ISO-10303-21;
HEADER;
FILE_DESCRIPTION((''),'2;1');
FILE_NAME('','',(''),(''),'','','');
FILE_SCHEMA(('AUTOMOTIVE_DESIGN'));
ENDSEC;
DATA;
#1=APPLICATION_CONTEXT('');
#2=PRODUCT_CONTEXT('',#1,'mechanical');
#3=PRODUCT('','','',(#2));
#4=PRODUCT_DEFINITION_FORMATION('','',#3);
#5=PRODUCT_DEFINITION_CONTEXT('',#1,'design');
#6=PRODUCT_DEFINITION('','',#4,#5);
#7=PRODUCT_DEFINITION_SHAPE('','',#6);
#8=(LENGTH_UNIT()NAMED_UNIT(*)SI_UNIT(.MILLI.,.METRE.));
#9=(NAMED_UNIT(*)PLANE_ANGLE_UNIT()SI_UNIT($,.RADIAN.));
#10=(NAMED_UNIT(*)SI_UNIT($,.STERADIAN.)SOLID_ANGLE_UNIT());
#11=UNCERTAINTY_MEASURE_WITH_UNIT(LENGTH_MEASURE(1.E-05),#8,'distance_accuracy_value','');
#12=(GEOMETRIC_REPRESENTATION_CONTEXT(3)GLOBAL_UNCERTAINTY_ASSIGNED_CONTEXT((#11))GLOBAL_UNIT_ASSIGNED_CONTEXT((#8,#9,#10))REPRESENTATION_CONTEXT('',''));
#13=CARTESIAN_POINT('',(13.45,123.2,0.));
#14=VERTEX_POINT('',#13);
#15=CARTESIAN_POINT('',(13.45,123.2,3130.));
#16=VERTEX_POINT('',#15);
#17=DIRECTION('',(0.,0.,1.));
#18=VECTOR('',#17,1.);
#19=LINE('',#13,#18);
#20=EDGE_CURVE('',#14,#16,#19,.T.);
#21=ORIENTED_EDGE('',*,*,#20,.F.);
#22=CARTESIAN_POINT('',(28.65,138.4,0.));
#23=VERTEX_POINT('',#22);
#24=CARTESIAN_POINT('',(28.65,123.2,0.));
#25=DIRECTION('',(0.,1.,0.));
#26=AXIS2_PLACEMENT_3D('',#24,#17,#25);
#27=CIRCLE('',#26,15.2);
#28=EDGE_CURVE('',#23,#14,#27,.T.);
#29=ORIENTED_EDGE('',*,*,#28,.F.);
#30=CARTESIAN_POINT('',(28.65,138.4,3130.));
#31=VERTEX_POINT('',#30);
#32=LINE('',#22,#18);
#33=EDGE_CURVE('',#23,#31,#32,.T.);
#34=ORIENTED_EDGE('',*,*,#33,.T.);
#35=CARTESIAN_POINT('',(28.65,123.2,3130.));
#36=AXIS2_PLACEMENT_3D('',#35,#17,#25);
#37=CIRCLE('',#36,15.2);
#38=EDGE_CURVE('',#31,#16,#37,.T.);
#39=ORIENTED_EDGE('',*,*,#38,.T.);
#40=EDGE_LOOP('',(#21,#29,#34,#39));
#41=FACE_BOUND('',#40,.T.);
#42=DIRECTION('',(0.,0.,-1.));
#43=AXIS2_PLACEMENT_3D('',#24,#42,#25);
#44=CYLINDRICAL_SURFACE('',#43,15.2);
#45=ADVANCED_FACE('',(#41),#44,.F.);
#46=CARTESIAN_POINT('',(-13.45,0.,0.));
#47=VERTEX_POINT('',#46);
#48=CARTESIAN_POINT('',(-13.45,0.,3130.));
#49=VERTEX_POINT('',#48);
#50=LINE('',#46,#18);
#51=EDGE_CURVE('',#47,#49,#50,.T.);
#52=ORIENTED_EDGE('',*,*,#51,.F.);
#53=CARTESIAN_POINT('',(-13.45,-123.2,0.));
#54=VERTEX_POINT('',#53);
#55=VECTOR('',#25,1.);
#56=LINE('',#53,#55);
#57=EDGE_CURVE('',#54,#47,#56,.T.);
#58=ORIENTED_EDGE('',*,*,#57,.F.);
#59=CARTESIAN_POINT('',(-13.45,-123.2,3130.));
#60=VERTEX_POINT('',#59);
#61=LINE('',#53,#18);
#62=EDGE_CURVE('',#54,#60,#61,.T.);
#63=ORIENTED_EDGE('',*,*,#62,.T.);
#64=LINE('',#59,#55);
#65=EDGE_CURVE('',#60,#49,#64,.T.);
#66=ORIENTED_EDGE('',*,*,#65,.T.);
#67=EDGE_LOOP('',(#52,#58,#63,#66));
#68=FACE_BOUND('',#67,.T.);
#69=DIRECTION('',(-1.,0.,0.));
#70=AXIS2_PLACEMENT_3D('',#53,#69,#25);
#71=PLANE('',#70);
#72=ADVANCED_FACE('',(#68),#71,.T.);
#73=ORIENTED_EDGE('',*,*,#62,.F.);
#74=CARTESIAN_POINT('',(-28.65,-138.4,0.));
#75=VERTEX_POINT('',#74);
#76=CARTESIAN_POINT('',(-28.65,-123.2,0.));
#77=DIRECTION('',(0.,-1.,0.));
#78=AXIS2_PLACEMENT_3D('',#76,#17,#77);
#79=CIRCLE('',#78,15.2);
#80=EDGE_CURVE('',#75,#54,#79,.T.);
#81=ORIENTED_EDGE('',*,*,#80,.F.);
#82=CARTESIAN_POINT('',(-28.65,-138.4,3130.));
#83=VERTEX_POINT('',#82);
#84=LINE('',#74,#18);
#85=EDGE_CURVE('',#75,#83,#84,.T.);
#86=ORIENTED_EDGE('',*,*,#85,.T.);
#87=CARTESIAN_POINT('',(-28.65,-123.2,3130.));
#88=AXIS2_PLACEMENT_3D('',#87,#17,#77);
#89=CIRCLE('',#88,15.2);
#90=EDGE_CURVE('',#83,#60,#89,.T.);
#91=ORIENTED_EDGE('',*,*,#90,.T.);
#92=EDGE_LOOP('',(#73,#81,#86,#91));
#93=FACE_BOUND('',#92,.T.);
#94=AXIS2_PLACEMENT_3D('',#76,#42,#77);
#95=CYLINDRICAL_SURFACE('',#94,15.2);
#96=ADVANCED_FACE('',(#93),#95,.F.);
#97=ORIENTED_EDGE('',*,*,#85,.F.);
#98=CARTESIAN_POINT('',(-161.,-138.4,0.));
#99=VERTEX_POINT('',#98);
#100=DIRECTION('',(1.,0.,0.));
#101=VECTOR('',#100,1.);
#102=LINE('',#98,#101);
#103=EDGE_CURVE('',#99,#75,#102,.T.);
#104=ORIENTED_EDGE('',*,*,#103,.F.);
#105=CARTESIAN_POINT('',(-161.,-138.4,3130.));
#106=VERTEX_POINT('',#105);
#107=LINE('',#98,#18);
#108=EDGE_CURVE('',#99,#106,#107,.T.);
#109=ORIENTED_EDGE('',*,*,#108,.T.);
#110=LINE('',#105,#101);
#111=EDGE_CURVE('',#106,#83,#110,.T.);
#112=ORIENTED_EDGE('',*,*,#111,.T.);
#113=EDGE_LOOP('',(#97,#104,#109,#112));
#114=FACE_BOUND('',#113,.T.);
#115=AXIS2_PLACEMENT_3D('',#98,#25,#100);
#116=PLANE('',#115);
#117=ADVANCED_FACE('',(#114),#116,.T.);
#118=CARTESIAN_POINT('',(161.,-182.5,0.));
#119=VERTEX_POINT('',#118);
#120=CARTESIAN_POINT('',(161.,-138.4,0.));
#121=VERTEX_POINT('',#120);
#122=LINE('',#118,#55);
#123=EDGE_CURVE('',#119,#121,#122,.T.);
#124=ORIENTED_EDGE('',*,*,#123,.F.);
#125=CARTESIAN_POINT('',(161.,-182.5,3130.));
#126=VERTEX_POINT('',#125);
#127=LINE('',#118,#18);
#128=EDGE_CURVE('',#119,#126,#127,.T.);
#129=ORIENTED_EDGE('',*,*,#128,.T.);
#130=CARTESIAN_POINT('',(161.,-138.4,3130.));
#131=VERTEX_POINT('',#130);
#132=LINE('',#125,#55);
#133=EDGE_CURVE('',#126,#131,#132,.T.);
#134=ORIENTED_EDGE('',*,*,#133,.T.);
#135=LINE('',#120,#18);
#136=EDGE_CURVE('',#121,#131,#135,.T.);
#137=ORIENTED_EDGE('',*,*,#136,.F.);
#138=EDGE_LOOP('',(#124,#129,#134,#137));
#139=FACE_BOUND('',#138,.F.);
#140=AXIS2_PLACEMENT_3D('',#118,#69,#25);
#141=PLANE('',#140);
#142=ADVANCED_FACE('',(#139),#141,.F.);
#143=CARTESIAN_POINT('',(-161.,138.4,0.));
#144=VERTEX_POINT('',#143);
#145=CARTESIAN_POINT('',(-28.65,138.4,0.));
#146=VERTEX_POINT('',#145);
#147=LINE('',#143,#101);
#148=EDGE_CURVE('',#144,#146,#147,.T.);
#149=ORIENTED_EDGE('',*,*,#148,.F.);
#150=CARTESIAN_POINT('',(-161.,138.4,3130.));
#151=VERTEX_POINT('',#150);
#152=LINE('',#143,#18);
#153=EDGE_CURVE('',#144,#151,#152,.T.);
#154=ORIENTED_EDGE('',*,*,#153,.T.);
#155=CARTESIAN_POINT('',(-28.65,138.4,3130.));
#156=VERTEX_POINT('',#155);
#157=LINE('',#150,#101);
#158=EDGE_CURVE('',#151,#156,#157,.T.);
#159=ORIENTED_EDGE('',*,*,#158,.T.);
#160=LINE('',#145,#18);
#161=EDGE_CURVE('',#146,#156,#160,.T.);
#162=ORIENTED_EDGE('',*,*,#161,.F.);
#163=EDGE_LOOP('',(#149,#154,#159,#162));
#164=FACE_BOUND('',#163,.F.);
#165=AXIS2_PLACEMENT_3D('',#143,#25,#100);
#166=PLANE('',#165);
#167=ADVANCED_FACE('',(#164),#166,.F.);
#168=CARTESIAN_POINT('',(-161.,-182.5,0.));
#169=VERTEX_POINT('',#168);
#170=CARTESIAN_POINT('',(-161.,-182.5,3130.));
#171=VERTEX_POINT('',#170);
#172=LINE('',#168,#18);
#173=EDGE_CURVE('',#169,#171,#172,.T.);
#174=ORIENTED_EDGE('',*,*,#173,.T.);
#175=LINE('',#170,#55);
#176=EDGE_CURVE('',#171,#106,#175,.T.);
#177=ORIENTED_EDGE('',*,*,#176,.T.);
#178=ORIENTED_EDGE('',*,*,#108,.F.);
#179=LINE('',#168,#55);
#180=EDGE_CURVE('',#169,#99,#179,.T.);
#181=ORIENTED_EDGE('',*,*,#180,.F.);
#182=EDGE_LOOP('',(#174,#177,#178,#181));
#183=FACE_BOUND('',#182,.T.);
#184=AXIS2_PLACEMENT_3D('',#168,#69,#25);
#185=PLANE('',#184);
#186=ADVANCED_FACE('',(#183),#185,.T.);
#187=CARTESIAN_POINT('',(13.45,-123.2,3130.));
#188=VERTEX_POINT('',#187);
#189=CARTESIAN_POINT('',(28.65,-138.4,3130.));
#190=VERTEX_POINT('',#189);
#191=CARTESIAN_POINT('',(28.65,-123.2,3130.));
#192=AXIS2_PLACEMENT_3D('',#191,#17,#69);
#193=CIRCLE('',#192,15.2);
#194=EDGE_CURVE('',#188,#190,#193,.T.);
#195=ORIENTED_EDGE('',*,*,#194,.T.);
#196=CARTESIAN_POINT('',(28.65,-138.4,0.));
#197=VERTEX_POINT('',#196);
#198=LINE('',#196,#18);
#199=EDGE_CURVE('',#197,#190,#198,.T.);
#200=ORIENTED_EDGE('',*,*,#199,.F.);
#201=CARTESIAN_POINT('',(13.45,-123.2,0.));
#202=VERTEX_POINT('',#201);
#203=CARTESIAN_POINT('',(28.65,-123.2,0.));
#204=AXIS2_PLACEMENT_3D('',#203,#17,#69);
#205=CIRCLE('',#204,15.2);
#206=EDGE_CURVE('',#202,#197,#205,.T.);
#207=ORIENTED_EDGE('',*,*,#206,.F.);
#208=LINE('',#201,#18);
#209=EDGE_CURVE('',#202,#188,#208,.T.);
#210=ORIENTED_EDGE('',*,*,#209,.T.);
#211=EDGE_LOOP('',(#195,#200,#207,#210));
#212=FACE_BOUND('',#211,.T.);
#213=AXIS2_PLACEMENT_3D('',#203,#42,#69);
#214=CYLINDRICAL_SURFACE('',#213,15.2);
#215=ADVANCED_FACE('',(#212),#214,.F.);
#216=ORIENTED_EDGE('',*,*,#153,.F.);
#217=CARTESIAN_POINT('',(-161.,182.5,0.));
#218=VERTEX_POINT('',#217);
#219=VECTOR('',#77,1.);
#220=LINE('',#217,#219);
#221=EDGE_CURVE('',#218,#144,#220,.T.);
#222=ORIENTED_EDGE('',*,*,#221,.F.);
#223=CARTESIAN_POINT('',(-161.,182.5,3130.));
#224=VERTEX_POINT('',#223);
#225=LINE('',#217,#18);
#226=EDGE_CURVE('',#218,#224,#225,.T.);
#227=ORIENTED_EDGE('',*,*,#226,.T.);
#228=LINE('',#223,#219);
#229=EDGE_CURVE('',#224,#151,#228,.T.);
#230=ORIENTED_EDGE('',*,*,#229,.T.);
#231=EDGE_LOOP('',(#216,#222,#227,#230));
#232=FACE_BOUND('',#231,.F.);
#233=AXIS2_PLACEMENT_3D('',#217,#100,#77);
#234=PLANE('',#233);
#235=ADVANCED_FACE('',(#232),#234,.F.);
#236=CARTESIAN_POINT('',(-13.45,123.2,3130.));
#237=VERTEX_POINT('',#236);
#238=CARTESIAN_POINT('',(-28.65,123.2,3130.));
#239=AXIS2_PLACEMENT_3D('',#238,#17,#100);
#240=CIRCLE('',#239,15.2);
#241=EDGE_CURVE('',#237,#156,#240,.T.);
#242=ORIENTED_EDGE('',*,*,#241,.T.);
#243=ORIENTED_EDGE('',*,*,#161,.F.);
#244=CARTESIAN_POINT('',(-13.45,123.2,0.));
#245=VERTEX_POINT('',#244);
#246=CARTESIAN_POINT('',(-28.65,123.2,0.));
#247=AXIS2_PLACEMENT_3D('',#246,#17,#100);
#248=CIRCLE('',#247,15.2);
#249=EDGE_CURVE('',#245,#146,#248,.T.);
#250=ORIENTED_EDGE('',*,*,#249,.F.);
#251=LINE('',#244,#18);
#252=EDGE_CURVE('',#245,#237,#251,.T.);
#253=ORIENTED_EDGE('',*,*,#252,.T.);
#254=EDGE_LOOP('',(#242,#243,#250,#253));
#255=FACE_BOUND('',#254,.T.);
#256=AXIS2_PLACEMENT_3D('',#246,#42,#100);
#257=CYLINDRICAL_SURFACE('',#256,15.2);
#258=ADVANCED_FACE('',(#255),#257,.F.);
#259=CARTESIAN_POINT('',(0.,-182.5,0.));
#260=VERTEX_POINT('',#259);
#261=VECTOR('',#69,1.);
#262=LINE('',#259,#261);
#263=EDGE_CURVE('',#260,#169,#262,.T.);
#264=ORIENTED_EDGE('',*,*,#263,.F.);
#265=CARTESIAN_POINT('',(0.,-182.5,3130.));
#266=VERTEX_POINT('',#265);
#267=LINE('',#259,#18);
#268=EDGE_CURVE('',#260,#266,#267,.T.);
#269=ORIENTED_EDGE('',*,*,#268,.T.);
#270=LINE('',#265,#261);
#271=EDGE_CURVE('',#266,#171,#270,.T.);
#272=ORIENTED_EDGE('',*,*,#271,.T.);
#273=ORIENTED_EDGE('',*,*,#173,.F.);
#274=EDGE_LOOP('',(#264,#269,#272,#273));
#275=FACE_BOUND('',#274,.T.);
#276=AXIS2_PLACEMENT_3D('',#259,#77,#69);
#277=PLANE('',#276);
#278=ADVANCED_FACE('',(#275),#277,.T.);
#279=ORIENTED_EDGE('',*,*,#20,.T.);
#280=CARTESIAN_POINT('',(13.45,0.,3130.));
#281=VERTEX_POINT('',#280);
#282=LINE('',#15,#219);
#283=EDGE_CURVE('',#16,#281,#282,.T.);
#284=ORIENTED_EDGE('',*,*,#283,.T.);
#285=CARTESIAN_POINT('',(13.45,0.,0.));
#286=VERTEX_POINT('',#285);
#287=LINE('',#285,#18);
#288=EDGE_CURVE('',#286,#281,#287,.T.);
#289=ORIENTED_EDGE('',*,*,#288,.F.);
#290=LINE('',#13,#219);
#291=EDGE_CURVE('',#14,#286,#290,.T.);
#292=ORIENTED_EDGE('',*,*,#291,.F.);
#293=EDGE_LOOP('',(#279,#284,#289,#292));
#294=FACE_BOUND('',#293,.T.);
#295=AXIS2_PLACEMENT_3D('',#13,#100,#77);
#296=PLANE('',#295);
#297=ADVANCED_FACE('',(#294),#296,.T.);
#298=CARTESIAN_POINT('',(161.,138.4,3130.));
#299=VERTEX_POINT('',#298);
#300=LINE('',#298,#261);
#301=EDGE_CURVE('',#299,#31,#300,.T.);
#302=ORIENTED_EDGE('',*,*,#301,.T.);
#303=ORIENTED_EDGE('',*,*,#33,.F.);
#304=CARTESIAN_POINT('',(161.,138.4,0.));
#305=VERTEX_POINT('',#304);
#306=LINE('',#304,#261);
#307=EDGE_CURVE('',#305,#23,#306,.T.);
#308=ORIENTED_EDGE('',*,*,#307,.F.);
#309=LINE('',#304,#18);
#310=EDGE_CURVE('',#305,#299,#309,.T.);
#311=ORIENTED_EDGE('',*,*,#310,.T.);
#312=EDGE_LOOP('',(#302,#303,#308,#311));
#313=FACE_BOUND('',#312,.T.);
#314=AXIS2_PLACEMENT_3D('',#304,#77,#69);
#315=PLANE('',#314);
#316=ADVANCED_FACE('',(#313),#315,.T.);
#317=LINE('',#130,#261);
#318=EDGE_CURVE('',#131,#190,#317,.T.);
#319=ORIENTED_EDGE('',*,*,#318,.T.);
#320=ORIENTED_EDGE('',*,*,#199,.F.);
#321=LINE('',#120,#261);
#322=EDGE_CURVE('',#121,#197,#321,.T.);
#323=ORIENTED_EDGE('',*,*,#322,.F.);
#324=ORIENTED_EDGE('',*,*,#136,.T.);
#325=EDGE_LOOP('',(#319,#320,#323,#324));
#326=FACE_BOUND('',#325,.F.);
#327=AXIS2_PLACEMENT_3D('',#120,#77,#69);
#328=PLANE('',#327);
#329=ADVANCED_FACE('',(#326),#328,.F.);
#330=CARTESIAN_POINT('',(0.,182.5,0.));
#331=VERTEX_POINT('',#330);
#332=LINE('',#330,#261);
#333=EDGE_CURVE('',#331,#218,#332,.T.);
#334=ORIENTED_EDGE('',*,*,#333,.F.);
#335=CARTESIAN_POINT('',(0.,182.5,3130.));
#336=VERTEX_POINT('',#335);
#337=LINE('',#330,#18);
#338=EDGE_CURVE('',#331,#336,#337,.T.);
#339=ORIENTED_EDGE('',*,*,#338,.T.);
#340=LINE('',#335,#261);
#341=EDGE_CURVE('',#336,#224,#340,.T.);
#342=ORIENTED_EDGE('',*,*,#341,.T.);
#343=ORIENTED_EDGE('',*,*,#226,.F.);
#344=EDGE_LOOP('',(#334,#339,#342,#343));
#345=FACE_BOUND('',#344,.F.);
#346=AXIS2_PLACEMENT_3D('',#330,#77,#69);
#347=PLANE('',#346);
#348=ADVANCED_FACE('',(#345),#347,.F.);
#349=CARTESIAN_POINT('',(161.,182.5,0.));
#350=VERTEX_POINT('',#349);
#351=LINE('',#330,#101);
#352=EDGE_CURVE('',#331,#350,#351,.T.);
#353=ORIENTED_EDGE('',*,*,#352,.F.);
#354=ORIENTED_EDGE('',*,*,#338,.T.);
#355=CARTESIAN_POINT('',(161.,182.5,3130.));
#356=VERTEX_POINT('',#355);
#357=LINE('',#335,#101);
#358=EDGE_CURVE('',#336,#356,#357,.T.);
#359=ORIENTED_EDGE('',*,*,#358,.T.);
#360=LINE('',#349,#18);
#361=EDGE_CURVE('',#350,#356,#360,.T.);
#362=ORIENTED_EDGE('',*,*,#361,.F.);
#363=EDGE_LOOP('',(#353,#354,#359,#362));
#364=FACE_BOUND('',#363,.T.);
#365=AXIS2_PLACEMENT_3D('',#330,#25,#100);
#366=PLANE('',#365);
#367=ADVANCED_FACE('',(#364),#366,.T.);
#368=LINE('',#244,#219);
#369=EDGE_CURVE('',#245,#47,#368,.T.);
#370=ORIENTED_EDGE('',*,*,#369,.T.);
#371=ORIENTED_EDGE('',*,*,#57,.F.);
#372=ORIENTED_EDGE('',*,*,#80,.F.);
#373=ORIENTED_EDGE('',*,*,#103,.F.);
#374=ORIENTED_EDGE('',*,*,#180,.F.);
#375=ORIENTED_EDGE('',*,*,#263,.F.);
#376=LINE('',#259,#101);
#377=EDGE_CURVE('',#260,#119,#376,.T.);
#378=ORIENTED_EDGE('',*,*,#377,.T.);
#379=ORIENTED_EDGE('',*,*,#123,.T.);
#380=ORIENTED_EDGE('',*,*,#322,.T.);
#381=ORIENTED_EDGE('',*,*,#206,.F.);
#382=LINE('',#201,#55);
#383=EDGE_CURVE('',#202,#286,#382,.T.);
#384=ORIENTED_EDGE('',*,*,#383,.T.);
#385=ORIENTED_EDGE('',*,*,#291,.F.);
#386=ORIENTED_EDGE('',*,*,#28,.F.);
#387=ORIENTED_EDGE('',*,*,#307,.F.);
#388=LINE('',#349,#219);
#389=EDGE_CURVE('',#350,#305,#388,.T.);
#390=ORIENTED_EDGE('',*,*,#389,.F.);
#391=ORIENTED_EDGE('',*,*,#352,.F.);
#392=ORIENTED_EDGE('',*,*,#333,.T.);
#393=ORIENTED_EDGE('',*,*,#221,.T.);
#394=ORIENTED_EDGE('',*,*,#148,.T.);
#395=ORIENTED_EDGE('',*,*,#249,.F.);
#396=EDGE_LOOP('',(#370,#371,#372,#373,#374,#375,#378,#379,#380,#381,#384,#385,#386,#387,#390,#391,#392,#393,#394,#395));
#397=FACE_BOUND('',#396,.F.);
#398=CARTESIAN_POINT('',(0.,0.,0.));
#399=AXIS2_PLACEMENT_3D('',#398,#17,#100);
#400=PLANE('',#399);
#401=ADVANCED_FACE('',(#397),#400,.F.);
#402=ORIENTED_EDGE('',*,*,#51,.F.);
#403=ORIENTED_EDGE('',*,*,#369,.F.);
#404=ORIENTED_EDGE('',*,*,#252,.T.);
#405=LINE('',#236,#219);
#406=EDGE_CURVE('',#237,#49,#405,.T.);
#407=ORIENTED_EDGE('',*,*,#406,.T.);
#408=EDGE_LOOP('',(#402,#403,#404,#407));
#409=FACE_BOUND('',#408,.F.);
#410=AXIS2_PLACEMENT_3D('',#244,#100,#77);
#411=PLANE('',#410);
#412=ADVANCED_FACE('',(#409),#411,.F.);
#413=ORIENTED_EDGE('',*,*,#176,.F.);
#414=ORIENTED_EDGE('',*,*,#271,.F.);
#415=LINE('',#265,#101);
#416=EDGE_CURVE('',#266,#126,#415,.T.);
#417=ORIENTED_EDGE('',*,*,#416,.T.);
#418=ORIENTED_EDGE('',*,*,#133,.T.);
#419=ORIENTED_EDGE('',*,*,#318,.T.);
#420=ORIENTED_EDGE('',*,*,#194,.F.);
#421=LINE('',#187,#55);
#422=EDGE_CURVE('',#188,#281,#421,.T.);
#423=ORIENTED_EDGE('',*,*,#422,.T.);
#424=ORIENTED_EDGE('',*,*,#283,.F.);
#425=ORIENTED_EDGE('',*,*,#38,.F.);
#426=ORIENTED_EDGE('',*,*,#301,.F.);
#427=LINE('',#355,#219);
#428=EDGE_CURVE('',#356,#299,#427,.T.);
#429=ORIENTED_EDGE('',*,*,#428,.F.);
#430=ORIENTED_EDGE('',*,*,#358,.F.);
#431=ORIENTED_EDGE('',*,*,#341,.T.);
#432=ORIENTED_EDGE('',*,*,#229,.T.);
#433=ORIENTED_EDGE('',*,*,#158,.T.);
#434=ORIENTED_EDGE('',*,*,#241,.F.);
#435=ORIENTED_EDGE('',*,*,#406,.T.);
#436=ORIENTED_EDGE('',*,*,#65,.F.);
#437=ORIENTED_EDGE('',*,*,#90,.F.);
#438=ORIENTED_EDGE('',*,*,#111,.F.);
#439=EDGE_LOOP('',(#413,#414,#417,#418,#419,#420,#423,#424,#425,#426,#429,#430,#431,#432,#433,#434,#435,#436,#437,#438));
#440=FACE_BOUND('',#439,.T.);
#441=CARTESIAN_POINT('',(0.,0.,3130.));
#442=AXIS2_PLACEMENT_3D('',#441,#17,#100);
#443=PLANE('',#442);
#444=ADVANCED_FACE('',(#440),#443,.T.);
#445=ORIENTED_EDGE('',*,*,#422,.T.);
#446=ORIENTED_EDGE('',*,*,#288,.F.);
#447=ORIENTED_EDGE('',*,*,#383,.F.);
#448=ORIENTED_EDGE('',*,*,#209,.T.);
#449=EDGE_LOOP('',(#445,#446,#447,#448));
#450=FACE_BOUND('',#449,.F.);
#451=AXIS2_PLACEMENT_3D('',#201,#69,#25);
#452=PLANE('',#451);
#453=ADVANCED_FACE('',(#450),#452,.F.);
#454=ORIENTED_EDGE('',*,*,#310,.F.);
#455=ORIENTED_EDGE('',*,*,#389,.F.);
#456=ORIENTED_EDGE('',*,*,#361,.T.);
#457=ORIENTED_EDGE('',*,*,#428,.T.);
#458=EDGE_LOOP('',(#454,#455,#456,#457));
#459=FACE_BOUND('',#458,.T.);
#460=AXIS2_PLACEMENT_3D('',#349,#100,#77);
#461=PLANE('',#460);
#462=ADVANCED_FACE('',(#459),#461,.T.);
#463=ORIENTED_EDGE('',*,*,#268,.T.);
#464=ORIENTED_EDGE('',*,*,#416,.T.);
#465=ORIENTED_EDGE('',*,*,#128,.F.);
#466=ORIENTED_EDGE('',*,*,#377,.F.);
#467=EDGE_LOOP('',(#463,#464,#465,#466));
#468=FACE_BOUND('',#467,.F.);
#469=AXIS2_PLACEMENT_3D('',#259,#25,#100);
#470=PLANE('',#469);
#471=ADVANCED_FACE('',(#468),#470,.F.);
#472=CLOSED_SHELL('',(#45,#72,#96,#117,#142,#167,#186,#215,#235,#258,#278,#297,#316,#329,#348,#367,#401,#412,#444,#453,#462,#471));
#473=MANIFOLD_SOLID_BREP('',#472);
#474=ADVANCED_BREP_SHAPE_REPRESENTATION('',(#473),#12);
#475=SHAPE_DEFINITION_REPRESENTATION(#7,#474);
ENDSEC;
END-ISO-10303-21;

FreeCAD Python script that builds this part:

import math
import FreeCAD as App
import Part
import Sketcher
Q = App.Units.Quantity

doc = App.newDocument("Part")
body = doc.addObject("PartDesign::Body", "Body")

# Sketch on XY plane
sketch1 = body.newObject("Sketcher::SketchObject", "Sketch")
sketch1.AttachmentSupport = (doc.getObject("XY_Plane"), [""])
sketch1.MapMode = "FlatFace"
sketch1.addGeometry(Part.LineSegment(App.Vector(-161, -138.4, 0), App.Vector(-161, -182.5, 0)), False)
sketch1.addGeometry(Part.LineSegment(App.Vector(-161, -182.5, 0), App.Vector(161, -182.5, 0)), False)
sketch1.addGeometry(Part.LineSegment(App.Vector(161, -182.5, 0), App.Vector(161, -138.4, 0)), False)
sketch1.addGeometry(Part.LineSegment(App.Vector(161, -138.4, 0), App.Vector(28.65, -138.4, 0)), False)
sketch1.addGeometry(Part.ArcOfCircle(Part.Circle(App.Vector(28.65, -123.2, 0), App.Vector(0, 0, 1), 15.2), math.radians(180), math.radians(270)), False)
sketch1.addGeometry(Part.LineSegment(App.Vector(13.45, -123.2, 0), App.Vector(13.45, 123.2, 0)), False)
sketch1.addGeometry(Part.ArcOfCircle(Part.Circle(App.Vector(28.65, 123.2, 0), App.Vector(0, 0, 1), 15.2), math.radians(90), math.radians(180)), False)
sketch1.addGeometry(Part.LineSegment(App.Vector(28.65, 138.4, 0), App.Vector(161, 138.4, 0)), False)
sketch1.addGeometry(Part.LineSegment(App.Vector(161, 138.4, 0), App.Vector(161, 182.5, 0)), False)
sketch1.addGeometry(Part.LineSegment(App.Vector(161, 182.5, 0), App.Vector(-161, 182.5, 0)), False)
sketch1.addGeometry(Part.LineSegment(App.Vector(-161, 182.5, 0), App.Vector(-161, 138.4, 0)), False)
sketch1.addGeometry(Part.LineSegment(App.Vector(-161, 138.4, 0), App.Vector(-28.65, 138.4, 0)), False)
sketch1.addGeometry(Part.ArcOfCircle(Part.Circle(App.Vector(-28.65, 123.2, 0), App.Vector(0, 0, 1), 15.2), math.radians(0), math.radians(90)), False)
sketch1.addGeometry(Part.LineSegment(App.Vector(-13.45, 123.2, 0), App.Vector(-13.45, -123.2, 0)), False)
sketch1.addGeometry(Part.ArcOfCircle(Part.Circle(App.Vector(-28.65, -123.2, 0), App.Vector(0, 0, 1), 15.2), math.radians(-90), math.radians(0)), False)
sketch1.addGeometry(Part.LineSegment(App.Vector(-28.65, -138.4, 0), App.Vector(-161, -138.4, 0)), False)
sketch1.addConstraint(Sketcher.Constraint("Coincident", 0, 2, 1, 1))
sketch1.addConstraint(Sketcher.Constraint("Coincident", 1, 2, 2, 1))
sketch1.addConstraint(Sketcher.Constraint("Coincident", 2, 2, 3, 1))
sketch1.addConstraint(Sketcher.Constraint("Tangent", 3, 2, 4, 2))
sketch1.addConstraint(Sketcher.Constraint("Tangent", 4, 1, 5, 1))
sketch1.addConstraint(Sketcher.Constraint("Tangent", 5, 2, 6, 2))
sketch1.addConstraint(Sketcher.Constraint("Tangent", 6, 1, 7, 1))
sketch1.addConstraint(Sketcher.Constraint("Coincident", 7, 2, 8, 1))
sketch1.addConstraint(Sketcher.Constraint("Coincident", 8, 2, 9, 1))
sketch1.addConstraint(Sketcher.Constraint("Coincident", 9, 2, 10, 1))
sketch1.addConstraint(Sketcher.Constraint("Coincident", 10, 2, 11, 1))
sketch1.addConstraint(Sketcher.Constraint("Tangent", 11, 2, 12, 2))
sketch1.addConstraint(Sketcher.Constraint("Tangent", 12, 1, 13, 1))
sketch1.addConstraint(Sketcher.Constraint("Tangent", 13, 2, 14, 2))
sketch1.addConstraint(Sketcher.Constraint("Tangent", 14, 1, 15, 1))
sketch1.addConstraint(Sketcher.Constraint("Coincident", 15, 2, 0, 1))
sketch1.addConstraint(Sketcher.Constraint("Vertical", 0))
sketch1.addConstraint(Sketcher.Constraint("Horizontal", 1))
sketch1.addConstraint(Sketcher.Constraint("Vertical", 2))
sketch1.addConstraint(Sketcher.Constraint("Horizontal", 3))
sketch1.addConstraint(Sketcher.Constraint("Vertical", 5))
sketch1.addConstraint(Sketcher.Constraint("Horizontal", 7))
sketch1.addConstraint(Sketcher.Constraint("Vertical", 8))
sketch1.addConstraint(Sketcher.Constraint("Horizontal", 9))
sketch1.addConstraint(Sketcher.Constraint("Vertical", 10))
sketch1.addConstraint(Sketcher.Constraint("Horizontal", 11))
sketch1.addConstraint(Sketcher.Constraint("Vertical", 13))
sketch1.addConstraint(Sketcher.Constraint("Horizontal", 15))
sketch1.addConstraint(Sketcher.Constraint("Equal", 4, 6))
sketch1.addConstraint(Sketcher.Constraint("Equal", 6, 12))
sketch1.addConstraint(Sketcher.Constraint("Equal", 12, 14))
sketch1.addConstraint(Sketcher.Constraint("Symmetric", 4, 3, 12, 3, -1, 1))
sketch1.addConstraint(Sketcher.Constraint("Symmetric", 0, 2, 8, 2, -1, 1))
sketch1.addConstraint(Sketcher.Constraint("Symmetric", 7, 2, 10, 2, -2))
sketch1.addConstraint(Sketcher.Constraint("Symmetric", 2, 2, 15, 2, -2))
sketch1.addConstraint(Sketcher.Constraint("Radius", 4, Q("15.2 mm")))
sketch1.addConstraint(Sketcher.Constraint("DistanceY", 0, 2, 0, 1, Q("44.1 mm")))
sketch1.addConstraint(Sketcher.Constraint("DistanceX", 0, 2, -1, 1, Q("161 mm")))
sketch1.addConstraint(Sketcher.Constraint("DistanceY", 0, 2, -1, 1, Q("182.5 mm")))
sketch1.addConstraint(Sketcher.Constraint("DistanceX", -1, 1, 4, 1, Q("13.45 mm")))
pad1 = body.newObject("PartDesign::Pad", "Pad")
pad1.Profile = sketch1
pad1.Length = 3130

doc.recompute()
